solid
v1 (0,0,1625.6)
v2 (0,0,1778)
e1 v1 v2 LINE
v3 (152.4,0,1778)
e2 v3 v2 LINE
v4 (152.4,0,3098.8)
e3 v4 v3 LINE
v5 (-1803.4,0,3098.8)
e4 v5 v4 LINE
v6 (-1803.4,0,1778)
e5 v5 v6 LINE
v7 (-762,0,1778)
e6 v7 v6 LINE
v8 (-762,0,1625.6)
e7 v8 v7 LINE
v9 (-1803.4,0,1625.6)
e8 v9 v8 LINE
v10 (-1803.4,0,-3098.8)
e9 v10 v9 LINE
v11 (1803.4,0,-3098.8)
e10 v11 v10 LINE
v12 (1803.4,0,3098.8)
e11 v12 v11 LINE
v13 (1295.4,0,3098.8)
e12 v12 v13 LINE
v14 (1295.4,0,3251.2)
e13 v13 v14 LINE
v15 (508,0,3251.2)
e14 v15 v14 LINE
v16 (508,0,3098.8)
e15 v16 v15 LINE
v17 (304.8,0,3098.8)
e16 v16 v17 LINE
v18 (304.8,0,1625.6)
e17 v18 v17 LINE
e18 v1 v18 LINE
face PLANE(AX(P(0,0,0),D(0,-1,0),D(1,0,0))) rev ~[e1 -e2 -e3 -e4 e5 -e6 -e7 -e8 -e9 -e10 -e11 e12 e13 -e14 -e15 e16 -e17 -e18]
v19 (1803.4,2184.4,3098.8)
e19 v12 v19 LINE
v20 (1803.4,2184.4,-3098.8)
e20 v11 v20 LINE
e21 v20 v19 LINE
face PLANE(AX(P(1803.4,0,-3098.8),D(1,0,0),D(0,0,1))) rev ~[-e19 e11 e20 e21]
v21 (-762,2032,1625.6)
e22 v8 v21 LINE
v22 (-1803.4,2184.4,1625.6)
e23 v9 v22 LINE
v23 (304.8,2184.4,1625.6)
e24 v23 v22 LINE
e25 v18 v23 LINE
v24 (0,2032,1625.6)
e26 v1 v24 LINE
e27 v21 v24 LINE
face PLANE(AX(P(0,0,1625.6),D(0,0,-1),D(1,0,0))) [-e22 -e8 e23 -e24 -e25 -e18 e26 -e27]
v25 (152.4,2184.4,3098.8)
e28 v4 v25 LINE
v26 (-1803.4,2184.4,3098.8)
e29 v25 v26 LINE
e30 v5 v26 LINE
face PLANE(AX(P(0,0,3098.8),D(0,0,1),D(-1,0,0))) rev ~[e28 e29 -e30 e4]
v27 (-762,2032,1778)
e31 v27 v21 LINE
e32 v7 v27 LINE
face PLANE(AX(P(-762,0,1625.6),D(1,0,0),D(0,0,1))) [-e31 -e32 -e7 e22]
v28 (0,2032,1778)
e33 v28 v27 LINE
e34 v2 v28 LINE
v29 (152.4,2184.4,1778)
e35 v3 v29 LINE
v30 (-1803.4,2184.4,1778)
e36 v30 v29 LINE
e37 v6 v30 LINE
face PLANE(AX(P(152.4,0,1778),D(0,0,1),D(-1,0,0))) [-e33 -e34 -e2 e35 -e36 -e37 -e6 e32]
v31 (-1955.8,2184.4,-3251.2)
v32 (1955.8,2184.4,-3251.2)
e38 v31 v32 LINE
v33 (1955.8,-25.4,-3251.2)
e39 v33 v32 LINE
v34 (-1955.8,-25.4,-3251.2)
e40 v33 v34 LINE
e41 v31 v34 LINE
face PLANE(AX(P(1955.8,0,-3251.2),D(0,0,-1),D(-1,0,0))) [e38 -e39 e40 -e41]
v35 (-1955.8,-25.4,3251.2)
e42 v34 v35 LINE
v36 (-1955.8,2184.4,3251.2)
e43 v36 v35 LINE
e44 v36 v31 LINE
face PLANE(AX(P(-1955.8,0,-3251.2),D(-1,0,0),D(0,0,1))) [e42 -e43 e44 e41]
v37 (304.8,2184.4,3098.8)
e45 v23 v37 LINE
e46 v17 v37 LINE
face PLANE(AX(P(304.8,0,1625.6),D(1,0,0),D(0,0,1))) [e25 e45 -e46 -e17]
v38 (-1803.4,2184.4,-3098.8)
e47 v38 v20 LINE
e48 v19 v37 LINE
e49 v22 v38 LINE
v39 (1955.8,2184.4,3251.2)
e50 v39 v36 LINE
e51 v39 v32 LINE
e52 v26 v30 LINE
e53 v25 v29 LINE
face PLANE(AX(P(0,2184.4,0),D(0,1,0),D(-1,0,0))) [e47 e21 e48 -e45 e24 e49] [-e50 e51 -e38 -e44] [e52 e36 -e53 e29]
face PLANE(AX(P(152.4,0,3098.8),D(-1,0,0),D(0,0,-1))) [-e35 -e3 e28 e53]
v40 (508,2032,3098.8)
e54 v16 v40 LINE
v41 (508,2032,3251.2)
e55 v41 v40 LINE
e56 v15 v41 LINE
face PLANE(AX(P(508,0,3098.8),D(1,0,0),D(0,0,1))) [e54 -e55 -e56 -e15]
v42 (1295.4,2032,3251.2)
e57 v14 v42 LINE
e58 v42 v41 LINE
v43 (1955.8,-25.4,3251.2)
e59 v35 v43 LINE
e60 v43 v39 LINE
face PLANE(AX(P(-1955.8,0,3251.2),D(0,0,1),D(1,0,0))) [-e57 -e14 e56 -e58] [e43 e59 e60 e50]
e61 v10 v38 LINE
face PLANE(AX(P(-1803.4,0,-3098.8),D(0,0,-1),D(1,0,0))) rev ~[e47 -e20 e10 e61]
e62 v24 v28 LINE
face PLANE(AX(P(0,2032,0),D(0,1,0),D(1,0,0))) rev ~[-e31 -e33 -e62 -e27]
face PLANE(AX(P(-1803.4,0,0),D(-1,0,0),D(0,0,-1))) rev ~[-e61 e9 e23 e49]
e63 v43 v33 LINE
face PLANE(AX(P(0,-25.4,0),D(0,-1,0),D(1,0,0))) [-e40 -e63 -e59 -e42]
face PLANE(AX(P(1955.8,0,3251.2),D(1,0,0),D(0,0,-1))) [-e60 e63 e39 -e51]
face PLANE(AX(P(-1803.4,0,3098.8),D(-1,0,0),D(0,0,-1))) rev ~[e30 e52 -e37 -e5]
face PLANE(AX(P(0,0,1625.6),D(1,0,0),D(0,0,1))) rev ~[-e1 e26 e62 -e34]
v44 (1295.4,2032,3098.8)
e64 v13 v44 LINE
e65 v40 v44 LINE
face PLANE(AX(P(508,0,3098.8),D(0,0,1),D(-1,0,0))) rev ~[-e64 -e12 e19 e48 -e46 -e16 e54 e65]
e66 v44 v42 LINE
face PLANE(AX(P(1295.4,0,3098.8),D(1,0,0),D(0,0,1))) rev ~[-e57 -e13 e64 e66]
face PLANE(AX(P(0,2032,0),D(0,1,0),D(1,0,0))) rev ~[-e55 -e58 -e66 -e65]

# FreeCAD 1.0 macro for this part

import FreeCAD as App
import Part
import Sketcher
from FreeCAD import Vector
Q = App.Units.Quantity


def add_polygon(sketch, points):
    """Adds a closed chain of lines whose ends are joined by coincident constraints."""
    first, n = sketch.GeometryCount, len(points)
    for a, b in zip(points, points[1:] + points[:1]):
        sketch.addGeometry(Part.LineSegment(App.Vector(*a, 0), App.Vector(*b, 0)), False)
    for i in range(n):
        sketch.addConstraint(Sketcher.Constraint("Coincident", first + i, 2, first + (i + 1) % n, 1))

doc = App.newDocument("Part")
body = doc.addObject("PartDesign::Body", "Body")

# Sketch on XZ plane
sketch1 = doc.addObject("Sketcher::SketchObject", "Sketch")
body.addObject(sketch1)
sketch1.AttachmentSupport = (doc.XZ_Plane, [""])
sketch1.MapMode = "FlatFace"
add_polygon(sketch1, [(-1956, -3251), (-1956, 3251), (508, 3251), (508, 3099), (305, 3099), (305, 1626), (0, 1626), (0, 1778), (152, 1778), (152, 3099), (-1803, 3099), (-1803, 1778), (-762, 1778), (-762, 1626), (-1803, 1626), (-1803, -3099), (1803, -3099), (1803, 3099), (1295, 3099), (1295, 3251), (1956, 3251), (1956, -3251)])  # lines 0-21
sketch1.addConstraint(Sketcher.Constraint("Vertical", 0))
sketch1.addConstraint(Sketcher.Constraint("Horizontal", 1))
sketch1.addConstraint(Sketcher.Constraint("Vertical", 2))
sketch1.addConstraint(Sketcher.Constraint("Horizontal", 3))
sketch1.addConstraint(Sketcher.Constraint("Vertical", 4))
sketch1.addConstraint(Sketcher.Constraint("Horizontal", 5))
sketch1.addConstraint(Sketcher.Constraint("Vertical", 6))
sketch1.addConstraint(Sketcher.Constraint("Horizontal", 7))
sketch1.addConstraint(Sketcher.Constraint("Vertical", 8))
sketch1.addConstraint(Sketcher.Constraint("Horizontal", 9))
sketch1.addConstraint(Sketcher.Constraint("Vertical", 10))
sketch1.addConstraint(Sketcher.Constraint("Horizontal", 11))
sketch1.addConstraint(Sketcher.Constraint("Vertical", 12))
sketch1.addConstraint(Sketcher.Constraint("Horizontal", 13))
sketch1.addConstraint(Sketcher.Constraint("Vertical", 14))
sketch1.addConstraint(Sketcher.Constraint("Horizontal", 15))
sketch1.addConstraint(Sketcher.Constraint("Vertical", 16))
sketch1.addConstraint(Sketcher.Constraint("Horizontal", 17))
sketch1.addConstraint(Sketcher.Constraint("Vertical", 18))
sketch1.addConstraint(Sketcher.Constraint("Horizontal", 19))
sketch1.addConstraint(Sketcher.Constraint("Vertical", 20))
sketch1.addConstraint(Sketcher.Constraint("Horizontal", 21))
sketch1.addConstraint(Sketcher.Constraint("Symmetric", 9, 2, 15, 2, -1, 1))
sketch1.addConstraint(Sketcher.Constraint("Symmetric", 14, 2, 16, 2, -1, 1))
sketch1.addConstraint(Sketcher.Constraint("Symmetric", 0, 2, 20, 2, -1, 1))
sketch1.addConstraint(Sketcher.Constraint("PointOnObject", 5, 2, -2))
sketch1.addConstraint(Sketcher.Constraint("Horizontal", 3, 2, 8, 2))
sketch1.addConstraint(Sketcher.Constraint("Horizontal", 7, 2, 10, 2))
sketch1.addConstraint(Sketcher.Constraint("Horizontal", 5, 2, 12, 2))
sketch1.addConstraint(Sketcher.Constraint("Horizontal", 1, 2, 18, 2))
sketch1.addConstraint(Sketcher.Constraint("Equal", 7, 2))
sketch1.addConstraint(Sketcher.Constraint("Equal", 2, 6))
sketch1.addConstraint(Sketcher.Constraint("DistanceX", 7, 1, 7, 2, Q("6 in")))
sketch1.addConstraint(Sketcher.Constraint("DistanceX", 17, 2, 17, 1, Q("20 in")))
sketch1.addConstraint(Sketcher.Constraint("DistanceX", 21, 2, 21, 1, Q("154 in")))
sketch1.addConstraint(Sketcher.Constraint("DistanceY", 0, 1, 0, 2, Q("256 in")))
sketch1.addConstraint(Sketcher.Constraint("DistanceY", 4, 2, 4, 1, Q("58 in")))
sketch1.addConstraint(Sketcher.Constraint("DistanceX", -1, 1, 1, 2, Q("20 in")))
sketch1.addConstraint(Sketcher.Constraint("DistanceX", 11, 2, -1, 1, Q("30 in")))
sketch1.addConstraint(Sketcher.Constraint("DistanceX", 7, 2, 4, 2, Q("6 in")))
sketch1.addConstraint(Sketcher.Constraint("DistanceX", 0, 2, 9, 2, Q("6 in")))
pad1 = doc.addObject("PartDesign::Pad", "Pad")
body.addObject(pad1)
pad1.Profile = sketch1
pad1.Length = Q("86 in")
pad1.Reversed = True

# Sketch on XZ plane
sketch2 = doc.addObject("Sketcher::SketchObject", "Sketch001")
body.addObject(sketch2)
sketch2.AttachmentSupport = (doc.XZ_Plane, [""])
sketch2.MapMode = "FlatFace"
add_polygon(sketch2, [(1956, 3251), (-1956, 3251), (-1956, -3251), (1956, -3251)])  # lines 0-3
sketch2.addConstraint(Sketcher.Constraint("Horizontal", 0))
sketch2.addConstraint(Sketcher.Constraint("Vertical", 1))
sketch2.addConstraint(Sketcher.Constraint("Horizontal", 2))
sketch2.addConstraint(Sketcher.Constraint("Vertical", 3))
sketch2.addConstraint(Sketcher.Constraint("Symmetric", 0, 2, 2, 2, -1, 1))
sketch2.addConstraint(Sketcher.Constraint("DistanceX", 0, 2, 0, 1, Q("154 in")))
sketch2.addConstraint(Sketcher.Constraint("DistanceY", 1, 2, 1, 1, Q("256 in")))
pad2 = doc.addObject("PartDesign::Pad", "Pad001")
body.addObject(pad2)
pad2.Profile = sketch2
pad2.Length = Q("1 in")

# Sketch on XZ plane
sketch3 = doc.addObject("Sketcher::SketchObject", "Sketch002")
body.addObject(sketch3)
sketch3.AttachmentSupport = (doc.XZ_Plane, [""])
sketch3.MapMode = "FlatFace"
sketch3.AttachmentOffset = App.Placement(Vector(0, 0, -86 * 25.4), App.Rotation())
add_polygon(sketch3, [(0, 1626), (-762, 1626), (-762, 1778), (0, 1778)])  # lines 0-3
add_polygon(sketch3, [(1295, 3099), (508, 3099), (508, 3251), (1295, 3251)])  # lines 4-7
sketch3.addConstraint(Sketcher.Constraint("Horizontal", 0))
sketch3.addConstraint(Sketcher.Constraint("Vertical", 1))
sketch3.addConstraint(Sketcher.Constraint("Horizontal", 2))
sketch3.addConstraint(Sketcher.Constraint("Vertical", 3))
sketch3.addConstraint(Sketcher.Constraint("Horizontal", 4))
sketch3.addConstraint(Sketcher.Constraint("Vertical", 5))
sketch3.addConstraint(Sketcher.Constraint("Horizontal", 6))
sketch3.addConstraint(Sketcher.Constraint("Vertical", 7))
sketch3.addConstraint(Sketcher.Constraint("PointOnObject", 2, 2, -2))
sketch3.addConstraint(Sketcher.Constraint("Equal", 3, 5))
sketch3.addConstraint(Sketcher.Constraint("DistanceX", 0, 2, 0, 1, Q("30 in")))
sketch3.addConstraint(Sketcher.Constraint("DistanceX", 4, 2, 4, 1, Q("31 in")))
sketch3.addConstraint(Sketcher.Constraint("DistanceY", 1, 1, 1, 2, Q("6 in")))
sketch3.addConstraint(Sketcher.Constraint("DistanceY", -1, 1, 0, 2, Q("64 in")))
sketch3.addConstraint(Sketcher.Constraint("DistanceX", -1, 1, 4, 2, Q("20 in")))
sketch3.addConstraint(Sketcher.Constraint("DistanceY", -1, 1, 4, 2, Q("122 in")))
pad3 = doc.addObject("PartDesign::Pad", "Pad002")
body.addObject(pad3)
pad3.Profile = sketch3
pad3.Length = Q("6 in")

doc.recompute()
